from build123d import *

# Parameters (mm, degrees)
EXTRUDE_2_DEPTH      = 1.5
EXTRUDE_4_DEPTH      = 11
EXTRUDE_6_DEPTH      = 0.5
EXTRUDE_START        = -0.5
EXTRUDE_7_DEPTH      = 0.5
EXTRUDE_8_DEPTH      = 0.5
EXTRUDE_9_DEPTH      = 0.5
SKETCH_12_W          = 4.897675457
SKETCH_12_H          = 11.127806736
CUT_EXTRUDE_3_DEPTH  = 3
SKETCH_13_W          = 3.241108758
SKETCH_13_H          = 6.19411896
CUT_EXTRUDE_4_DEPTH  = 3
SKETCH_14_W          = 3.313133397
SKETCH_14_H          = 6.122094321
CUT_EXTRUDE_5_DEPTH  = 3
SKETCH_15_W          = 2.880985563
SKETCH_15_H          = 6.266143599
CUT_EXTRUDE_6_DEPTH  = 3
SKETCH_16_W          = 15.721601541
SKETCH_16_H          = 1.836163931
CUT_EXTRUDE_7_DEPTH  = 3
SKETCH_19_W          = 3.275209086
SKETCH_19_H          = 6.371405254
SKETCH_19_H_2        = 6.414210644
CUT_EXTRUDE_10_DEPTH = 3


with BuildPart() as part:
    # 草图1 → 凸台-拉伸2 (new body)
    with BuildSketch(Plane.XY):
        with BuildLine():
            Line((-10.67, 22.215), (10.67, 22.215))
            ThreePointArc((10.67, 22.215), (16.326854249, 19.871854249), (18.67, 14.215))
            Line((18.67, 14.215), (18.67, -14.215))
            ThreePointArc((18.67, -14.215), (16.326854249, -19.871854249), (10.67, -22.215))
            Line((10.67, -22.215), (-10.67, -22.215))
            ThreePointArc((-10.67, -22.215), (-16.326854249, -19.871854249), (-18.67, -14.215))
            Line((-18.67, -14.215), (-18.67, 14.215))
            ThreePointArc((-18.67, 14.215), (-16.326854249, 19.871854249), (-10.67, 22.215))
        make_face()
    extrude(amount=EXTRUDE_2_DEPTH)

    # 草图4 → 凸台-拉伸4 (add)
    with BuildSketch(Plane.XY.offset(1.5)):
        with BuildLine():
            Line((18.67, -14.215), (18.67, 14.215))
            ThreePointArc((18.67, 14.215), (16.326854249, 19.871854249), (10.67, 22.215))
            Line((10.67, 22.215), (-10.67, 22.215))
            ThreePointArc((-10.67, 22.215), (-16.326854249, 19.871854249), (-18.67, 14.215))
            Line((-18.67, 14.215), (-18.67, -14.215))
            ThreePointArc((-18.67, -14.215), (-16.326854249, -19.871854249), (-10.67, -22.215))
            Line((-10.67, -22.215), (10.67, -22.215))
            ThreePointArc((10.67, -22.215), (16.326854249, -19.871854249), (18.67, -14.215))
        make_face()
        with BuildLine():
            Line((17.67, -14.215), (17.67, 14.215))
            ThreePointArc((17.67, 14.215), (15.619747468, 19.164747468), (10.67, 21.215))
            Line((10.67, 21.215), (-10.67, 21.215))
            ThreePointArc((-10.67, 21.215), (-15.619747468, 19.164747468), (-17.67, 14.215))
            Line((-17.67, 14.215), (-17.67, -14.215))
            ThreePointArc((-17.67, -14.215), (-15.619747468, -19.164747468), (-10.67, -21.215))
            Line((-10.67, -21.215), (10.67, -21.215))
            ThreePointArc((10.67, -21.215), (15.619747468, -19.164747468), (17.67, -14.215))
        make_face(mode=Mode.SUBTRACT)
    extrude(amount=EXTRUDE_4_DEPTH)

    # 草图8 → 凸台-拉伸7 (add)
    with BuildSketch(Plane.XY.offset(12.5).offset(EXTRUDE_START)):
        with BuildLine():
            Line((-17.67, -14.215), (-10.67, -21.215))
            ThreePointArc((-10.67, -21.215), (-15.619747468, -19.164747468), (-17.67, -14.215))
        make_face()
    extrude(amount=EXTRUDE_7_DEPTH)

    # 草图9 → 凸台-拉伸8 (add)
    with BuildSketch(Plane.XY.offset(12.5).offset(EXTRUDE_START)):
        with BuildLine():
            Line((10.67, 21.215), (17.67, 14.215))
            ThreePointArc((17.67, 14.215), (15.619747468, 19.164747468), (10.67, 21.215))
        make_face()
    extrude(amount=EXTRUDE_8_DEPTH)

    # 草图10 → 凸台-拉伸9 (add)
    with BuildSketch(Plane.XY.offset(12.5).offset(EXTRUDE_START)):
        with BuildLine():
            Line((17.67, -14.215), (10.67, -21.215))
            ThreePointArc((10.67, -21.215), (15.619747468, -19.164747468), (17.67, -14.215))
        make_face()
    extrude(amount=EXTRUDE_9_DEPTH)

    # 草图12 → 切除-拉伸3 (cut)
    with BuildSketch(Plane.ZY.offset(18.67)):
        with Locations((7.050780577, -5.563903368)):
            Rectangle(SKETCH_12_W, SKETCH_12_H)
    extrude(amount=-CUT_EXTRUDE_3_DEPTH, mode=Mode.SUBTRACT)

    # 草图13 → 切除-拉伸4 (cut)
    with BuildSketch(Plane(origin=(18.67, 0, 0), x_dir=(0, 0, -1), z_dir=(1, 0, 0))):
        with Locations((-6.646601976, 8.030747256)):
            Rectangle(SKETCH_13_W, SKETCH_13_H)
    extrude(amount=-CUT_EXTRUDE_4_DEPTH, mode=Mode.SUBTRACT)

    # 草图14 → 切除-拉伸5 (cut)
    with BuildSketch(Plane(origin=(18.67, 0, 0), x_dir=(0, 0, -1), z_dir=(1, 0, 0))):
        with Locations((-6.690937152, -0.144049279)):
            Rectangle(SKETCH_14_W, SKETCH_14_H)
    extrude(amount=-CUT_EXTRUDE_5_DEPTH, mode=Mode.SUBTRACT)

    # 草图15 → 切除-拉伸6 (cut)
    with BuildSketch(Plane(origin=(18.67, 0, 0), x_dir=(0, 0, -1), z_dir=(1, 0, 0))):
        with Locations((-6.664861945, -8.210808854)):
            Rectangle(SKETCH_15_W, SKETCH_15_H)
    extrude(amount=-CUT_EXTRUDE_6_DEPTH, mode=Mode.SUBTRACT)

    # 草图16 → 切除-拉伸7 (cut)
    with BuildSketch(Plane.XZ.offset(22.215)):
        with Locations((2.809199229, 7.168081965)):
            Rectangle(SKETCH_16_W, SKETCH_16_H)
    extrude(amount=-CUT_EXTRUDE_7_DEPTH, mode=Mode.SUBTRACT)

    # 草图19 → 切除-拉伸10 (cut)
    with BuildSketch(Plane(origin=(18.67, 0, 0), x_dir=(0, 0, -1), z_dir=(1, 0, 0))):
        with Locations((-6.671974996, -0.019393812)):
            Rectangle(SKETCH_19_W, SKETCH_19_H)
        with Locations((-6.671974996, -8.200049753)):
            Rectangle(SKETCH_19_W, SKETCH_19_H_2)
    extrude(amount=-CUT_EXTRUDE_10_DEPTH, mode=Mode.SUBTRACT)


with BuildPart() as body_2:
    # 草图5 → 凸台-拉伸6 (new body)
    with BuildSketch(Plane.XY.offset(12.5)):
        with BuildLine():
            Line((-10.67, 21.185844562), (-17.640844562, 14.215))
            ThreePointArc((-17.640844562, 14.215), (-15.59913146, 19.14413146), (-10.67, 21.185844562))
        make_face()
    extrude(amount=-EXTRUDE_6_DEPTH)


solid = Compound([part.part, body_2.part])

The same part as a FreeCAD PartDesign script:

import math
import FreeCAD as App
import Part
import Sketcher
Q = App.Units.Quantity

doc = App.newDocument("Part")
body = doc.addObject("PartDesign::Body", "Body")

# Sketch on XY plane
sketch1 = body.newObject("Sketcher::SketchObject", "Sketch")
sketch1.AttachmentSupport = (doc.getObject("XY_Plane"), [""])
sketch1.MapMode = "FlatFace"
sketch1.addGeometry([
    Part.LineSegment(App.Vector(11, 22, 0), App.Vector(-11, 22, 0)),  # 0
    Part.ArcOfCircle(Part.Circle(App.Vector(-11, 14, 0), App.Vector(0, 0, 1), 8), math.radians(90), math.radians(180)),  # 1
    Part.LineSegment(App.Vector(-19, 14, 0), App.Vector(-19, -14, 0)),  # 2
    Part.ArcOfCircle(Part.Circle(App.Vector(-11, -14, 0), App.Vector(0, 0, 1), 8), math.radians(-180), math.radians(-90)),  # 3
    Part.LineSegment(App.Vector(-11, -22, 0), App.Vector(11, -22, 0)),  # 4
    Part.ArcOfCircle(Part.Circle(App.Vector(11, -14, 0), App.Vector(0, 0, 1), 8), math.radians(-90), math.radians(0)),  # 5
    Part.LineSegment(App.Vector(19, -14, 0), App.Vector(19, 14, 0)),  # 6
    Part.ArcOfCircle(Part.Circle(App.Vector(11, 14, 0), App.Vector(0, 0, 1), 8), math.radians(0), math.radians(90)),  # 7
], False)
sketch1.addConstraint([
    Sketcher.Constraint("Tangent", 0, 2, 1, 1),
    Sketcher.Constraint("Tangent", 1, 2, 2, 1),
    Sketcher.Constraint("Tangent", 2, 2, 3, 1),
    Sketcher.Constraint("Tangent", 3, 2, 4, 1),
    Sketcher.Constraint("Tangent", 4, 2, 5, 1),
    Sketcher.Constraint("Tangent", 5, 2, 6, 1),
    Sketcher.Constraint("Tangent", 6, 2, 7, 1),
    Sketcher.Constraint("Tangent", 7, 2, 0, 1),
    Sketcher.Constraint("Horizontal", 0),
    Sketcher.Constraint("Vertical", 2),
    Sketcher.Constraint("Horizontal", 4),
    Sketcher.Constraint("Vertical", 6),
    Sketcher.Constraint("Equal", 1, 3),
    Sketcher.Constraint("Equal", 3, 5),
    Sketcher.Constraint("Equal", 5, 7),
    Sketcher.Constraint("Symmetric", 1, 3, 5, 3, -1, 1),
    Sketcher.Constraint("Radius", 1, 8.0),
    Sketcher.Constraint("DistanceX", 0, 2, 0, 1, 21.34),
    Sketcher.Constraint("DistanceY", 2, 2, 2, 1, 28.43),
])
pad1 = body.newObject("PartDesign::Pad", "Pad")
pad1.Profile = sketch1
pad1.Length = 1.5

# Sketch on XY plane
sketch2 = body.newObject("Sketcher::SketchObject", "Sketch001")
sketch2.AttachmentSupport = (doc.getObject("XY_Plane"), [""])
sketch2.MapMode = "FlatFace"
sketch2.AttachmentOffset = App.Placement(App.Vector(0, 0, 1.5), App.Rotation())
sketch2.addGeometry([
    Part.LineSegment(App.Vector(19, -14, 0), App.Vector(19, 14, 0)),  # 0
    Part.ArcOfCircle(Part.Circle(App.Vector(11, 14, 0), App.Vector(0, 0, 1), 8), math.radians(0), math.radians(90)),  # 1
    Part.LineSegment(App.Vector(11, 22, 0), App.Vector(-11, 22, 0)),  # 2
    Part.ArcOfCircle(Part.Circle(App.Vector(-11, 14, 0), App.Vector(0, 0, 1), 8), math.radians(90), math.radians(180)),  # 3
    Part.LineSegment(App.Vector(-19, 14, 0), App.Vector(-19, -14, 0)),  # 4
    Part.ArcOfCircle(Part.Circle(App.Vector(-11, -14, 0), App.Vector(0, 0, 1), 8), math.radians(-180), math.radians(-90)),  # 5
    Part.LineSegment(App.Vector(-11, -22, 0), App.Vector(11, -22, 0)),  # 6
    Part.ArcOfCircle(Part.Circle(App.Vector(11, -14, 0), App.Vector(0, 0, 1), 8), math.radians(-90), math.radians(0)),  # 7
    Part.LineSegment(App.Vector(18, 14, 0), App.Vector(18, -14, 0)),  # 8
    Part.ArcOfCircle(Part.Circle(App.Vector(11, -14, 0), App.Vector(0, 0, 1), 7), math.radians(-90), math.radians(0)),  # 9
    Part.LineSegment(App.Vector(11, -21, 0), App.Vector(-11, -21, 0)),  # 10
    Part.ArcOfCircle(Part.Circle(App.Vector(-11, -14, 0), App.Vector(0, 0, 1), 7), math.radians(-180), math.radians(-90)),  # 11
    Part.LineSegment(App.Vector(-18, -14, 0), App.Vector(-18, 14, 0)),  # 12
    Part.ArcOfCircle(Part.Circle(App.Vector(-11, 14, 0), App.Vector(0, 0, 1), 7), math.radians(90), math.radians(180)),  # 13
    Part.LineSegment(App.Vector(-11, 21, 0), App.Vector(11, 21, 0)),  # 14
    Part.ArcOfCircle(Part.Circle(App.Vector(11, 14, 0), App.Vector(0, 0, 1), 7), math.radians(0), math.radians(90)),  # 15
], False)
sketch2.addConstraint([
    Sketcher.Constraint("Tangent", 0, 2, 1, 1),
    Sketcher.Constraint("Tangent", 1, 2, 2, 1),
    Sketcher.Constraint("Tangent", 2, 2, 3, 1),
    Sketcher.Constraint("Tangent", 3, 2, 4, 1),
    Sketcher.Constraint("Tangent", 4, 2, 5, 1),
    Sketcher.Constraint("Tangent", 5, 2, 6, 1),
    Sketcher.Constraint("Tangent", 6, 2, 7, 1),
    Sketcher.Constraint("Tangent", 7, 2, 0, 1),
    Sketcher.Constraint("Tangent", 8, 2, 9, 2),
    Sketcher.Constraint("Tangent", 9, 1, 10, 1),
    Sketcher.Constraint("Tangent", 10, 2, 11, 2),
    Sketcher.Constraint("Tangent", 11, 1, 12, 1),
    Sketcher.Constraint("Tangent", 12, 2, 13, 2),
    Sketcher.Constraint("Tangent", 13, 1, 14, 1),
    Sketcher.Constraint("Tangent", 14, 2, 15, 2),
    Sketcher.Constraint("Tangent", 15, 1, 8, 1),
    Sketcher.Constraint("Vertical", 0),
    Sketcher.Constraint("Horizontal", 2),
    Sketcher.Constraint("Vertical", 4),
    Sketcher.Constraint("Horizontal", 6),
    Sketcher.Constraint("Vertical", 8),
    Sketcher.Constraint("Horizontal", 10),
    Sketcher.Constraint("Vertical", 12),
    Sketcher.Constraint("Horizontal", 14),
    Sketcher.Constraint("Coincident", 9, 3, 7, 3),
    Sketcher.Constraint("Coincident", 11, 3, 5, 3),
    Sketcher.Constraint("Coincident", 13, 3, 3, 3),
    Sketcher.Constraint("Equal", 1, 3),
    Sketcher.Constraint("Equal", 3, 5),
    Sketcher.Constraint("Equal", 5, 7),
    Sketcher.Constraint("Equal", 13, 15),
    Sketcher.Constraint("Symmetric", 1, 3, 5, 3, -1, 1),
    Sketcher.Constraint("Radius", 1, 8.0),
    Sketcher.Constraint("Radius", 9, 7.0),
    Sketcher.Constraint("DistanceX", 2, 2, 2, 1, 21.34),
    Sketcher.Constraint("DistanceY", 0, 1, 0, 2, 28.43),
])
pad2 = body.newObject("PartDesign::Pad", "Pad001")
pad2.Profile = sketch2
pad2.Length = 11

# Sketch on XY plane
sketch3 = body.newObject("Sketcher::SketchObject", "Sketch002")
sketch3.AttachmentSupport = (doc.getObject("XY_Plane"), [""])
sketch3.MapMode = "FlatFace"
sketch3.AttachmentOffset = App.Placement(App.Vector(0, 0, 12), App.Rotation())
sketch3.addGeometry([
    Part.LineSegment(App.Vector(-11, -21, 0), App.Vector(-18, -14, 0)),
    Part.ArcOfCircle(Part.Circle(App.Vector(-11, -14, 0), App.Vector(0, 0, 1), 7), math.radians(-180), math.radians(-90)),
], False)
sketch3.addConstraint([
    Sketcher.Constraint("Coincident", 0, 1, 1, 2),
    Sketcher.Constraint("Coincident", 1, 1, 0, 2),
    Sketcher.Constraint("Vertical", 1, 3, 0, 1),
    Sketcher.Constraint("Radius", 1, 7.0),
    Sketcher.Constraint("Angle", 0, Q("135 deg")),
    Sketcher.Constraint("DistanceX", 1, 3, -1, 1, 10.67),
    Sketcher.Constraint("DistanceY", 1, 3, -1, 1, 14.215),
])
pad3 = body.newObject("PartDesign::Pad", "Pad002")
pad3.Profile = sketch3
pad3.Length = 0.5

# Sketch on XY plane
sketch4 = body.newObject("Sketcher::SketchObject", "Sketch003")
sketch4.AttachmentSupport = (doc.getObject("XY_Plane"), [""])
sketch4.MapMode = "FlatFace"
sketch4.AttachmentOffset = App.Placement(App.Vector(0, 0, 12), App.Rotation())
sketch4.addGeometry([
    Part.LineSegment(App.Vector(11, 21, 0), App.Vector(18, 14, 0)),
    Part.ArcOfCircle(Part.Circle(App.Vector(11, 14, 0), App.Vector(0, 0, 1), 7), math.radians(0), math.radians(90)),
], False)
sketch4.addConstraint([
    Sketcher.Constraint("Coincident", 0, 1, 1, 2),
    Sketcher.Constraint("Coincident", 1, 1, 0, 2),
    Sketcher.Constraint("Vertical", 1, 3, 0, 1),
    Sketcher.Constraint("Radius", 1, 7.0),
    Sketcher.Constraint("Angle", 0, Q("-45 deg")),
    Sketcher.Constraint("DistanceX", -1, 1, 1, 3, 10.67),
    Sketcher.Constraint("DistanceY", -1, 1, 1, 3, 14.215),
])
pad4 = body.newObject("PartDesign::Pad", "Pad003")
pad4.Profile = sketch4
pad4.Length = 0.5

# Sketch on XY plane
sketch5 = body.newObject("Sketcher::SketchObject", "Sketch004")
sketch5.AttachmentSupport = (doc.getObject("XY_Plane"), [""])
sketch5.MapMode = "FlatFace"
sketch5.AttachmentOffset = App.Placement(App.Vector(0, 0, 12), App.Rotation())
sketch5.addGeometry([
    Part.LineSegment(App.Vector(18, -14, 0), App.Vector(11, -21, 0)),
    Part.ArcOfCircle(Part.Circle(App.Vector(11, -14, 0), App.Vector(0, 0, 1), 7), math.radians(-90), math.radians(0)),
], False)
sketch5.addConstraint([
    Sketcher.Constraint("Coincident", 0, 1, 1, 2),
    Sketcher.Constraint("Coincident", 1, 1, 0, 2),
    Sketcher.Constraint("Horizontal", 1, 3, 0, 1),
    Sketcher.Constraint("Radius", 1, 7.0),
    Sketcher.Constraint("Angle", 0, Q("-135 deg")),
    Sketcher.Constraint("DistanceX", -1, 1, 1, 3, 10.67),
    Sketcher.Constraint("DistanceY", 1, 3, -1, 1, 14.215),
])
pad5 = body.newObject("PartDesign::Pad", "Pad004")
pad5.Profile = sketch5
pad5.Length = 0.5

# Sketch on YZ plane
sketch6 = body.newObject("Sketcher::SketchObject", "Sketch005")
sketch6.AttachmentSupport = (doc.getObject("YZ_Plane"), [""])
sketch6.MapMode = "FlatFace"
sketch6.AttachmentOffset = App.Placement(App.Vector(0, 0, -18.67), App.Rotation())
sketch6.addGeometry([
    Part.LineSegment(App.Vector(0, 4.6, 0), App.Vector(-11.1, 4.6, 0)),
    Part.LineSegment(App.Vector(-11.1, 4.6, 0), App.Vector(-11.1, 9.5, 0)),
    Part.LineSegment(App.Vector(-11.1, 9.5, 0), App.Vector(0, 9.5, 0)),
    Part.LineSegment(App.Vector(0, 9.5, 0), App.Vector(0, 4.6, 0)),
], False)
sketch6.addConstraint([
    Sketcher.Constraint("Coincident", 0, 2, 1, 1),
    Sketcher.Constraint("Coincident", 1, 2, 2, 1),
    Sketcher.Constraint("Coincident", 2, 2, 3, 1),
    Sketcher.Constraint("Coincident", 3, 2, 0, 1),
    Sketcher.Constraint("Horizontal", 0),
    Sketcher.Constraint("Vertical", 1),
    Sketcher.Constraint("Horizontal", 2),
    Sketcher.Constraint("Vertical", 3),
    Sketcher.Constraint("PointOnObject", 2, 2, -2),
    Sketcher.Constraint("DistanceX", 0, 2, 0, 1, 11.127807),
    Sketcher.Constraint("DistanceY", 1, 1, 1, 2, 4.897675),
    Sketcher.Constraint("DistanceY", -1, 1, 1, 2, 9.499618),
])
pocket1 = body.newObject("PartDesign::Pocket", "Pocket")
pocket1.Profile = sketch6
pocket1.Length = 3
pocket1.Reversed = True

# Sketch on YZ plane
sketch7 = body.newObject("Sketcher::SketchObject", "Sketch006")
sketch7.AttachmentSupport = (doc.getObject("YZ_Plane"), [""])
sketch7.MapMode = "FlatFace"
sketch7.AttachmentOffset = App.Placement(App.Vector(0, 0, 18.67), App.Rotation())
sketch7.addGeometry([
    Part.LineSegment(App.Vector(11.1, 8.3, 0), App.Vector(4.9, 8.3, 0)),
    Part.LineSegment(App.Vector(4.9, 8.3, 0), App.Vector(4.9, 5, 0)),
    Part.LineSegment(App.Vector(4.9, 5, 0), App.Vector(11.1, 5, 0)),
    Part.LineSegment(App.Vector(11.1, 5, 0), App.Vector(11.1, 8.3, 0)),
], False)
sketch7.addConstraint([
    Sketcher.Constraint("Coincident", 0, 2, 1, 1),
    Sketcher.Constraint("Coincident", 1, 2, 2, 1),
    Sketcher.Constraint("Coincident", 2, 2, 3, 1),
    Sketcher.Constraint("Coincident", 3, 2, 0, 1),
    Sketcher.Constraint("Horizontal", 0),
    Sketcher.Constraint("Vertical", 1),
    Sketcher.Constraint("Horizontal", 2),
    Sketcher.Constraint("Vertical", 3),
    Sketcher.Constraint("DistanceX", 0, 2, 0, 1, 6.194119),
    Sketcher.Constraint("DistanceY", 1, 2, 1, 1, 3.241109),
    Sketcher.Constraint("DistanceX", -1, 1, 0, 2, 4.933688),
    Sketcher.Constraint("DistanceY", -1, 1, 0, 2, 8.267156),
])
pocket2 = body.newObject("PartDesign::Pocket", "Pocket001")
pocket2.Profile = sketch7
pocket2.Length = 3

# Sketch on YZ plane
sketch8 = body.newObject("Sketcher::SketchObject", "Sketch007")
sketch8.AttachmentSupport = (doc.getObject("YZ_Plane"), [""])
sketch8.MapMode = "FlatFace"
sketch8.AttachmentOffset = App.Placement(App.Vector(0, 0, 18.67), App.Rotation())
sketch8.addGeometry([
    Part.LineSegment(App.Vector(2.9, 8.3, 0), App.Vector(-3.2, 8.3, 0)),
    Part.LineSegment(App.Vector(-3.2, 8.3, 0), App.Vector(-3.2, 5, 0)),
    Part.LineSegment(App.Vector(-3.2, 5, 0), App.Vector(2.9, 5, 0)),
    Part.LineSegment(App.Vector(2.9, 5, 0), App.Vector(2.9, 8.3, 0)),
], False)
sketch8.addConstraint([
    Sketcher.Constraint("Coincident", 0, 2, 1, 1),
    Sketcher.Constraint("Coincident", 1, 2, 2, 1),
    Sketcher.Constraint("Coincident", 2, 2, 3, 1),
    Sketcher.Constraint("Coincident", 3, 2, 0, 1),
    Sketcher.Constraint("Horizontal", 0),
    Sketcher.Constraint("Vertical", 1),
    Sketcher.Constraint("Horizontal", 2),
    Sketcher.Constraint("Vertical", 3),
    Sketcher.Constraint("DistanceX", 0, 2, 0, 1, 6.122094),
    Sketcher.Constraint("DistanceY", 1, 2, 1, 1, 3.313133),
    Sketcher.Constraint("DistanceY", -1, 1, 1, 2, 5.03437),
    Sketcher.Constraint("DistanceX", 0, 2, -1, 1, 3.205096),
])
pocket3 = body.newObject("PartDesign::Pocket", "Pocket002")
pocket3.Profile = sketch8
pocket3.Length = 3

# Sketch on YZ plane
sketch9 = body.newObject("Sketcher::SketchObject", "Sketch008")
sketch9.AttachmentSupport = (doc.getObject("YZ_Plane"), [""])
sketch9.MapMode = "FlatFace"
sketch9.AttachmentOffset = App.Placement(App.Vector(0, 0, 18.67), App.Rotation())
sketch9.addGeometry([
    Part.LineSegment(App.Vector(-5.1, 8.1, 0), App.Vector(-11.3, 8.1, 0)),
    Part.LineSegment(App.Vector(-11.3, 8.1, 0), App.Vector(-11.3, 5.2, 0)),
    Part.LineSegment(App.Vector(-11.3, 5.2, 0), App.Vector(-5.1, 5.2, 0)),
    Part.LineSegment(App.Vector(-5.1, 5.2, 0), App.Vector(-5.1, 8.1, 0)),
], False)
sketch9.addConstraint([
    Sketcher.Constraint("Coincident", 0, 2, 1, 1),
    Sketcher.Constraint("Coincident", 1, 2, 2, 1),
    Sketcher.Constraint("Coincident", 2, 2, 3, 1),
    Sketcher.Constraint("Coincident", 3, 2, 0, 1),
    Sketcher.Constraint("Horizontal", 0),
    Sketcher.Constraint("Vertical", 1),
    Sketcher.Constraint("Horizontal", 2),
    Sketcher.Constraint("Vertical", 3),
    Sketcher.Constraint("DistanceX", 0, 2, 0, 1, 6.266144),
    Sketcher.Constraint("DistanceY", 1, 2, 1, 1, 2.880986),
    Sketcher.Constraint("DistanceX", 0, 2, -1, 1, 11.343881),
    Sketcher.Constraint("DistanceY", -1, 1, 1, 2, 5.224369),
])
pocket4 = body.newObject("PartDesign::Pocket", "Pocket003")
pocket4.Profile = sketch9
pocket4.Length = 3

# Sketch on XZ plane
sketch10 = body.newObject("Sketcher::SketchObject", "Sketch009")
sketch10.AttachmentSupport = (doc.getObject("XZ_Plane"), [""])
sketch10.MapMode = "FlatFace"
sketch10.AttachmentOffset = App.Placement(App.Vector(0, 0, 22.215), App.Rotation())
sketch10.addGeometry([
    Part.LineSegment(App.Vector(-5.1, 8.1, 0), App.Vector(-5.1, 6.2, 0)),
    Part.LineSegment(App.Vector(-5.1, 6.2, 0), App.Vector(10.7, 6.2, 0)),
    Part.LineSegment(App.Vector(10.7, 6.2, 0), App.Vector(10.7, 8.1, 0)),
    Part.LineSegment(App.Vector(10.7, 8.1, 0), App.Vector(-5.1, 8.1, 0)),
], False)
sketch10.addConstraint([
    Sketcher.Constraint("Coincident", 0, 2, 1, 1),
    Sketcher.Constraint("Coincident", 1, 2, 2, 1),
    Sketcher.Constraint("Coincident", 2, 2, 3, 1),
    Sketcher.Constraint("Coincident", 3, 2, 0, 1),
    Sketcher.Constraint("Vertical", 0),
    Sketcher.Constraint("Horizontal", 1),
    Sketcher.Constraint("Vertical", 2),
    Sketcher.Constraint("Horizontal", 3),
    Sketcher.Constraint("DistanceY", -1, 1, 0, 2, 6.25),
    Sketcher.Constraint("DistanceX", -1, 1, 1, 2, 10.67),
    Sketcher.Constraint("DistanceX", 1, 1, 1, 2, 15.721602),
    Sketcher.Constraint("DistanceY", 0, 2, 0, 1, 1.836164),
])
pocket5 = body.newObject("PartDesign::Pocket", "Pocket004")
pocket5.Profile = sketch10
pocket5.Length = 3

# Sketch on YZ plane
sketch11 = body.newObject("Sketcher::SketchObject", "Sketch010")
sketch11.AttachmentSupport = (doc.getObject("YZ_Plane"), [""])
sketch11.MapMode = "FlatFace"
sketch11.AttachmentOffset = App.Placement(App.Vector(0, 0, 18.67), App.Rotation())
sketch11.addGeometry([
    Part.LineSegment(App.Vector(3.2, 8.3, 0), App.Vector(-3.2, 8.3, 0)),  # 0
    Part.LineSegment(App.Vector(-3.2, 8.3, 0), App.Vector(-3.2, 5, 0)),  # 1
    Part.LineSegment(App.Vector(-3.2, 5, 0), App.Vector(3.2, 5, 0)),  # 2
    Part.LineSegment(App.Vector(3.2, 5, 0), App.Vector(3.2, 8.3, 0)),  # 3
    Part.LineSegment(App.Vector(-5, 8.3, 0), App.Vector(-11.4, 8.3, 0)),  # 4
    Part.LineSegment(App.Vector(-11.4, 8.3, 0), App.Vector(-11.4, 5, 0)),  # 5
    Part.LineSegment(App.Vector(-11.4, 5, 0), App.Vector(-5, 5, 0)),  # 6
    Part.LineSegment(App.Vector(-5, 5, 0), App.Vector(-5, 8.3, 0)),  # 7
], False)
sketch11.addConstraint([
    Sketcher.Constraint("Coincident", 0, 2, 1, 1),
    Sketcher.Constraint("Coincident", 1, 2, 2, 1),
    Sketcher.Constraint("Coincident", 2, 2, 3, 1),
    Sketcher.Constraint("Coincident", 3, 2, 0, 1),
    Sketcher.Constraint("Coincident", 4, 2, 5, 1),
    Sketcher.Constraint("Coincident", 5, 2, 6, 1),
    Sketcher.Constraint("Coincident", 6, 2, 7, 1),
    Sketcher.Constraint("Coincident", 7, 2, 4, 1),
    Sketcher.Constraint("Horizontal", 0),
    Sketcher.Constraint("Vertical", 1),
    Sketcher.Constraint("Horizontal", 2),
    Sketcher.Constraint("Vertical", 3),
    Sketcher.Constraint("Horizontal", 4),
    Sketcher.Constraint("Vertical", 5),
    Sketcher.Constraint("Horizontal", 6),
    Sketcher.Constraint("Vertical", 7),
    Sketcher.Constraint("Horizontal", 3, 2, 4, 2),
    Sketcher.Constraint("Horizontal", 2, 2, 5, 2),
    Sketcher.Constraint("DistanceX", 4, 2, 4, 1, 6.414211),
    Sketcher.Constraint("DistanceY", 1, 2, 1, 1, 3.275209),
    Sketcher.Constraint("DistanceX", 0, 2, 0, 1, 6.371405),
    Sketcher.Constraint("DistanceY", -1, 1, 0, 2, 8.30958),
    Sketcher.Constraint("DistanceX", -1, 1, 2, 2, 3.166309),
    Sketcher.Constraint("DistanceX", 4, 2, 0, 2, 8.202059),
])
pocket6 = body.newObject("PartDesign::Pocket", "Pocket005")
pocket6.Profile = sketch11
pocket6.Length = 3
body2 = doc.addObject("PartDesign::Body", "Body001")

# Sketch on XY plane
sketch12 = body2.newObject("Sketcher::SketchObject", "Sketch011")
sketch12.AttachmentSupport = (doc.getObject("XY_Plane001"), [""])
sketch12.MapMode = "FlatFace"
sketch12.AttachmentOffset = App.Placement(App.Vector(0, 0, 12.5), App.Rotation())
sketch12.addGeometry([
    Part.LineSegment(App.Vector(-18, 14, 0), App.Vector(-11, 21, 0)),
    Part.ArcOfCircle(Part.Circle(App.Vector(-11, 14, 0), App.Vector(0, 0, 1), 7), math.radians(90), math.radians(180)),
], False)
sketch12.addConstraint([
    Sketcher.Constraint("Coincident", 0, 1, 1, 2),
    Sketcher.Constraint("Coincident", 1, 1, 0, 2),
    Sketcher.Constraint("Horizontal", 1, 3, 0, 1),
    Sketcher.Constraint("Angle", 0, Q("45 deg")),
    Sketcher.Constraint("DistanceX", 1, 3, -1, 1, 10.67),
    Sketcher.Constraint("DistanceY", -1, 1, 1, 3, 14.215),
    Sketcher.Constraint("Radius", 1, 6.970845),
])
pad6 = body2.newObject("PartDesign::Pad", "Pad005")
pad6.Profile = sketch12
pad6.Length = 0.5
pad6.Reversed = True

doc.recompute()
